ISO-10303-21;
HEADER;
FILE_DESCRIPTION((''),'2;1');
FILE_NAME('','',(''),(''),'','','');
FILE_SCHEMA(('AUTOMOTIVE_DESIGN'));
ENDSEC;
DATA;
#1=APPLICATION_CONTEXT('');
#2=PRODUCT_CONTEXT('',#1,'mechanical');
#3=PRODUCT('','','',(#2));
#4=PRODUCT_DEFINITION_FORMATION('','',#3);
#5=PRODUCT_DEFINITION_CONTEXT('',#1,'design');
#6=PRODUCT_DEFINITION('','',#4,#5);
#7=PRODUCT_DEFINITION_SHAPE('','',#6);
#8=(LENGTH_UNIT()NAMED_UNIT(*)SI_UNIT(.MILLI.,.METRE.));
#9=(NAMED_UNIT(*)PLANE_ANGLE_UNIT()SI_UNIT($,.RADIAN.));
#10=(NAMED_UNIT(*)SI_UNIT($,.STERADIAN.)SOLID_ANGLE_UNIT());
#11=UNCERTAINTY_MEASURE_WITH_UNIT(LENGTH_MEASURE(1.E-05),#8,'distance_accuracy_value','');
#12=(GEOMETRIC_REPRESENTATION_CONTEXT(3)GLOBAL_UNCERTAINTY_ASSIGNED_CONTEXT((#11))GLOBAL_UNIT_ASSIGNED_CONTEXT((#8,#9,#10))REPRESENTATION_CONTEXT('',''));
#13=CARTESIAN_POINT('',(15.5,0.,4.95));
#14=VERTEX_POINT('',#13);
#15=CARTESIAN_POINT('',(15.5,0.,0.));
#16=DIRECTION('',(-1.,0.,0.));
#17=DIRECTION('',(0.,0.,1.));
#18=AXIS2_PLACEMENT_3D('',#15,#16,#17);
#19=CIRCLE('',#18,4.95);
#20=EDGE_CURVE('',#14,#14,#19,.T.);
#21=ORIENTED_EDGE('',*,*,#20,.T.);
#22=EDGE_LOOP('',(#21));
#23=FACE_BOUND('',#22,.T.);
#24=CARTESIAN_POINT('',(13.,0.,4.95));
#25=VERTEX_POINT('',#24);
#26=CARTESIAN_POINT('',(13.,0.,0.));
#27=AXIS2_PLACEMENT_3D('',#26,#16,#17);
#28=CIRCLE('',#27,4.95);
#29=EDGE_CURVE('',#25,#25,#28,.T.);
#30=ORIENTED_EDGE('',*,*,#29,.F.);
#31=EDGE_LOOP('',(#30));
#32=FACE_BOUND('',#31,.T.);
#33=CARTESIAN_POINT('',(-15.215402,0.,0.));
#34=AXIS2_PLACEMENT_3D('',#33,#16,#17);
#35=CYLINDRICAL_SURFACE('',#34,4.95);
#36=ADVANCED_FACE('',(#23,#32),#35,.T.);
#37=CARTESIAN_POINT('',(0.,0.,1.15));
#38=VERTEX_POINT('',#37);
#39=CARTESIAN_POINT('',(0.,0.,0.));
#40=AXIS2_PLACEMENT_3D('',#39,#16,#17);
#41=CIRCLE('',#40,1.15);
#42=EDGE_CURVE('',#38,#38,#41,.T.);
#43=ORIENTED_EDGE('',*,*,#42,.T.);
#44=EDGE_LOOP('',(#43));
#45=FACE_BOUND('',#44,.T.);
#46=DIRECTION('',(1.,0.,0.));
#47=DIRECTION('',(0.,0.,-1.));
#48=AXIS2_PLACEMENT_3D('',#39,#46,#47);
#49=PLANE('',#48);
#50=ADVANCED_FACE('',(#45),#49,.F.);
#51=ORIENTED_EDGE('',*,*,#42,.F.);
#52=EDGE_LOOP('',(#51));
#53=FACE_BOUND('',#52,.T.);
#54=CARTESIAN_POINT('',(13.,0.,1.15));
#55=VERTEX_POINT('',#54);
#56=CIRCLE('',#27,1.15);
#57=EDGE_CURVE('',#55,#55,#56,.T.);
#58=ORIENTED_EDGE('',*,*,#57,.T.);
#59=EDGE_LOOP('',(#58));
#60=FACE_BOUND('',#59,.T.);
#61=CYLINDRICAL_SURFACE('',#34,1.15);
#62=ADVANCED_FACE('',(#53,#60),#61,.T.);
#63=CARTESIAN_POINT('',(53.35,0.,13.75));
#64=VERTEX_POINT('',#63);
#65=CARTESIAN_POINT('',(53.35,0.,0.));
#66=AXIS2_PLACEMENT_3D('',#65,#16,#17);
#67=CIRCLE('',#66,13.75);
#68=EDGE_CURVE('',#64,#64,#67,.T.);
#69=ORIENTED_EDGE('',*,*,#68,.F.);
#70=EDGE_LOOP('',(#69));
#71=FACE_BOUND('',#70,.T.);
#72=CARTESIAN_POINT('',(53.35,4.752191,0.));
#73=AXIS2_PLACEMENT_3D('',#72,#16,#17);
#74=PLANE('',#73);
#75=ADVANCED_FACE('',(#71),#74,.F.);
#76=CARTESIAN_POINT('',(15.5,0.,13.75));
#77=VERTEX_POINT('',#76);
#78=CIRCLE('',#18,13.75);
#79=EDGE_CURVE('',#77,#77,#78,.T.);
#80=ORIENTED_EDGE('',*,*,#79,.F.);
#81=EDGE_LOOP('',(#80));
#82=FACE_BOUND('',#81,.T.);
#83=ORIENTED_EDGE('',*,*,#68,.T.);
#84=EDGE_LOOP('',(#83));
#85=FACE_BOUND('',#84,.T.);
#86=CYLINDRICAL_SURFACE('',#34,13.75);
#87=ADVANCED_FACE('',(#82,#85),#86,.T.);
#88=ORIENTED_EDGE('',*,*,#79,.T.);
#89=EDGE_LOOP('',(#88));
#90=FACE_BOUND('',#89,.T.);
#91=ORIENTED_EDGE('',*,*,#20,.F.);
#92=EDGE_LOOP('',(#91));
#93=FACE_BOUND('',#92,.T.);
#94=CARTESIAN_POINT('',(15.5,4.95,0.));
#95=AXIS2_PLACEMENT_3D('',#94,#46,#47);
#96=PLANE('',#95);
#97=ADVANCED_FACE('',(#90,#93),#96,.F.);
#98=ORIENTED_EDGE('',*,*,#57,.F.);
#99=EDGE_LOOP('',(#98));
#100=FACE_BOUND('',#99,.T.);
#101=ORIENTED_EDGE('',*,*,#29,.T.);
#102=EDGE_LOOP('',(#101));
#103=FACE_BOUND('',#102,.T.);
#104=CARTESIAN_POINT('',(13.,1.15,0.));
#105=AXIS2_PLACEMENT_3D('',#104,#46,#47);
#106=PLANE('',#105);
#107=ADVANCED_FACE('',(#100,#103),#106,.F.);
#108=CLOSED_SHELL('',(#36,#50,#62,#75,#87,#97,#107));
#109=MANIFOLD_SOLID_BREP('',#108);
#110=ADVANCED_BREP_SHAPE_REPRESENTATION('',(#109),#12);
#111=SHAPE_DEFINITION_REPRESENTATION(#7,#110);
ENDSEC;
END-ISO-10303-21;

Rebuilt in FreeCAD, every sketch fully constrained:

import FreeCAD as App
import Part
import Sketcher
from FreeCAD import Vector
Q = App.Units.Quantity


def add_polygon(sketch, points):
    """Adds a closed chain of lines whose ends are joined by coincident constraints."""
    first, n = sketch.GeometryCount, len(points)
    for a, b in zip(points, points[1:] + points[:1]):
        sketch.addGeometry(Part.LineSegment(App.Vector(*a, 0), App.Vector(*b, 0)), False)
    for i in range(n):
        sketch.addConstraint(Sketcher.Constraint("Coincident", first + i, 2, first + (i + 1) % n, 1))

doc = App.newDocument("Part")
body = doc.addObject("PartDesign::Body", "Body")

# Sketch on XY plane
sketch1 = body.newObject("Sketcher::SketchObject", "Sketch")
sketch1.AttachmentSupport = (doc.getObject("XY_Plane"), [""])
sketch1.MapMode = "FlatFace"
add_polygon(sketch1, [(0, 1.1), (0, 0), (53.4, 0), (53.4, 13.8), (15.5, 13.8), (15.5, 5), (13, 5), (13, 1.1)])  # lines 0-7
sketch1.addConstraint(Sketcher.Constraint("Vertical", 0))
sketch1.addConstraint(Sketcher.Constraint("Horizontal", 1))
sketch1.addConstraint(Sketcher.Constraint("Vertical", 2))
sketch1.addConstraint(Sketcher.Constraint("Horizontal", 3))
sketch1.addConstraint(Sketcher.Constraint("Vertical", 4))
sketch1.addConstraint(Sketcher.Constraint("Horizontal", 5))
sketch1.addConstraint(Sketcher.Constraint("Vertical", 6))
sketch1.addConstraint(Sketcher.Constraint("Horizontal", 7))
sketch1.addConstraint(Sketcher.Constraint("Coincident", 0, 2, -1, 1))
sketch1.addConstraint(Sketcher.Constraint("DistanceX", 7, 2, 7, 1, Q("13 mm")))
sketch1.addConstraint(Sketcher.Constraint("DistanceX", 5, 2, 5, 1, Q("2.5 mm")))
sketch1.addConstraint(Sketcher.Constraint("DistanceY", 4, 2, 4, 1, Q("8.8 mm")))
sketch1.addConstraint(Sketcher.Constraint("DistanceY", 6, 2, 6, 1, Q("3.8 mm")))
sketch1.addConstraint(Sketcher.Constraint("DistanceX", 1, 1, 1, 2, Q("53.35 mm")))
sketch1.addConstraint(Sketcher.Constraint("DistanceY", 0, 2, 0, 1, Q("1.15 mm")))
revolution = body.newObject("PartDesign::Revolution", "Revolution")
revolution.Profile = sketch1
revolution.ReferenceAxis = (sketch1, ["H_Axis"])
revolution.Angle = 360

doc.recompute()
